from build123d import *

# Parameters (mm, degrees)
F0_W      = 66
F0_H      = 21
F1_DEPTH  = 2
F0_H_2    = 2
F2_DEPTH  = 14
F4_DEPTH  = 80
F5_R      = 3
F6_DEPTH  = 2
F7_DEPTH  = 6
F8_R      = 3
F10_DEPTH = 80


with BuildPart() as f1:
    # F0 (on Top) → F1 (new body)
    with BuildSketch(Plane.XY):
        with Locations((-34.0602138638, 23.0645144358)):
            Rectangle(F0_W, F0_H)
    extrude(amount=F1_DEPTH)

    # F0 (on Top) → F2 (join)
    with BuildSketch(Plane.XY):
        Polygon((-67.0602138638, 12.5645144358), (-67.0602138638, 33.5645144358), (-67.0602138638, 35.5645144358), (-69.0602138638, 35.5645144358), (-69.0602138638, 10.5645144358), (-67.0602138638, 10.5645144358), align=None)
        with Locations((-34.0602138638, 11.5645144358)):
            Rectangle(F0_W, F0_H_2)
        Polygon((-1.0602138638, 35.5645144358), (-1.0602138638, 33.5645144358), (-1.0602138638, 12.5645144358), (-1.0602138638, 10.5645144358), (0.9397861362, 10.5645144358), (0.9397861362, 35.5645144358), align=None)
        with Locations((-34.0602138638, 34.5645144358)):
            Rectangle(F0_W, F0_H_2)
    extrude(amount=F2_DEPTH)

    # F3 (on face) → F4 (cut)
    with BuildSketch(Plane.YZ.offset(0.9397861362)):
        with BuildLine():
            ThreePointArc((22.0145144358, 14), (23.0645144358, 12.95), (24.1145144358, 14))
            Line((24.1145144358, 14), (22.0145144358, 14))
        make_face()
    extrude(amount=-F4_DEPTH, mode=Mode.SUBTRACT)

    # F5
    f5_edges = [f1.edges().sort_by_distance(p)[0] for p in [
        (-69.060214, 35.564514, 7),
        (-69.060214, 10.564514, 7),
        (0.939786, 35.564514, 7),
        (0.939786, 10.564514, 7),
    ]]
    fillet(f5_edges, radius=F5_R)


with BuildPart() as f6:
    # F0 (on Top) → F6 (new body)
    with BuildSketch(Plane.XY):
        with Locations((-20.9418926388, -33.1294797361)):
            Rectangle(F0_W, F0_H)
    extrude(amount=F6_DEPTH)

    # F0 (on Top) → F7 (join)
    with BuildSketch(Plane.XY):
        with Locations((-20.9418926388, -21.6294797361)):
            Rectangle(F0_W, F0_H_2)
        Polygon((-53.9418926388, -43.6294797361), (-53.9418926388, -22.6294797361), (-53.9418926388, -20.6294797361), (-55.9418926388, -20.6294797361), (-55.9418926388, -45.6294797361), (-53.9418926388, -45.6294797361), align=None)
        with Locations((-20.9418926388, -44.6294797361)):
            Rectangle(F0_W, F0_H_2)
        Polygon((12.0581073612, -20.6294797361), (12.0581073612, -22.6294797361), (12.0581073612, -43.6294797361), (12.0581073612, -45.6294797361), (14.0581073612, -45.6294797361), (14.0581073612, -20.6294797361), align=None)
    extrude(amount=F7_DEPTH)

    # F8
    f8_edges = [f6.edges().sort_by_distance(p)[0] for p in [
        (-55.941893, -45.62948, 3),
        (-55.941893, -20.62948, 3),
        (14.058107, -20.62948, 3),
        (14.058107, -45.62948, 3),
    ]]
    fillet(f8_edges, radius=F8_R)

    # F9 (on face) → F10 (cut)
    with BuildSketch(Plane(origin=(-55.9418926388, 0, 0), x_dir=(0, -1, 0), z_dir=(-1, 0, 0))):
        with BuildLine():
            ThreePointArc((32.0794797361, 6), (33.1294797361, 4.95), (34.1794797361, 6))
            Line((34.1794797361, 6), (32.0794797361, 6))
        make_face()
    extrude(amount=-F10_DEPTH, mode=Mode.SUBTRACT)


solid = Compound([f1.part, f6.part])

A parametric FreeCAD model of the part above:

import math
import FreeCAD as App
import Part
import Sketcher
from FreeCAD import Vector


def edges_at(feature, points):
    """Names of the edges that pass closest to the given points."""
    edges = feature.Shape.Edges
    near = lambda p: min(range(len(edges)), key=lambda i: edges[i].distToShape(Part.Vertex(*p))[0])
    return sorted({f"Edge{near(p) + 1}" for p in points})

doc = App.newDocument("Part")
body = doc.addObject("PartDesign::Body", "Body")

# Sketch on XY plane
sketch1 = doc.addObject("Sketcher::SketchObject", "Sketch")
body.addObject(sketch1)
sketch1.AttachmentSupport = (doc.XY_Plane, [""])
sketch1.MapMode = "FlatFace"
sketch1.addGeometry([
    Part.LineSegment(Vector(-67.060214, 33.564514, 0), Vector(-67.060214, 12.564514, 0)),
    Part.LineSegment(Vector(-67.060214, 12.564514, 0), Vector(-1.060214, 12.564514, 0)),
    Part.LineSegment(Vector(-1.060214, 12.564514, 0), Vector(-1.060214, 33.564514, 0)),
    Part.LineSegment(Vector(-1.060214, 33.564514, 0), Vector(-67.060214, 33.564514, 0)),
], False)
sketch1.addConstraint([
    Sketcher.Constraint("Coincident", 0, 2, 1, 1),
    Sketcher.Constraint("Coincident", 1, 2, 2, 1),
    Sketcher.Constraint("Coincident", 2, 2, 3, 1),
    Sketcher.Constraint("Coincident", 3, 2, 0, 1),
    Sketcher.Constraint("Vertical", 0),
    Sketcher.Constraint("Horizontal", 1),
    Sketcher.Constraint("Vertical", 2),
    Sketcher.Constraint("Horizontal", 3),
    Sketcher.Constraint("DistanceX", 1, 1, 1, 2, 66.0),
    Sketcher.Constraint("DistanceY", 0, 2, 0, 1, 21.0),
    Sketcher.Constraint("DistanceX", 0, 2, -1, 1, 67.060214),
    Sketcher.Constraint("DistanceY", -1, 1, 0, 2, 12.564514),
])
pad1 = doc.addObject("PartDesign::Pad", "Pad")
body.addObject(pad1)
pad1.Profile = sketch1
pad1.Length = 2

# Sketch on XY plane
sketch2 = doc.addObject("Sketcher::SketchObject", "Sketch001")
body.addObject(sketch2)
sketch2.AttachmentSupport = (doc.XY_Plane, [""])
sketch2.MapMode = "FlatFace"
sketch2.addGeometry([
    Part.LineSegment(Vector(-69.060214, 35.564514, 0), Vector(-69.060214, 10.564514, 0)),  # 0
    Part.LineSegment(Vector(-69.060214, 10.564514, 0), Vector(0.939786, 10.564514, 0)),  # 1
    Part.LineSegment(Vector(0.939786, 10.564514, 0), Vector(0.939786, 35.564514, 0)),  # 2
    Part.LineSegment(Vector(0.939786, 35.564514, 0), Vector(-69.060214, 35.564514, 0)),  # 3
    Part.LineSegment(Vector(-1.060214, 33.564514, 0), Vector(-1.060214, 12.564514, 0)),  # 4
    Part.LineSegment(Vector(-1.060214, 12.564514, 0), Vector(-67.060214, 12.564514, 0)),  # 5
    Part.LineSegment(Vector(-67.060214, 12.564514, 0), Vector(-67.060214, 33.564514, 0)),  # 6
    Part.LineSegment(Vector(-67.060214, 33.564514, 0), Vector(-1.060214, 33.564514, 0)),  # 7
], False)
sketch2.addConstraint([
    Sketcher.Constraint("Coincident", 0, 2, 1, 1),
    Sketcher.Constraint("Coincident", 1, 2, 2, 1),
    Sketcher.Constraint("Coincident", 2, 2, 3, 1),
    Sketcher.Constraint("Coincident", 3, 2, 0, 1),
    Sketcher.Constraint("Coincident", 4, 2, 5, 1),
    Sketcher.Constraint("Coincident", 5, 2, 6, 1),
    Sketcher.Constraint("Coincident", 6, 2, 7, 1),
    Sketcher.Constraint("Coincident", 7, 2, 4, 1),
    Sketcher.Constraint("Vertical", 0),
    Sketcher.Constraint("Horizontal", 1),
    Sketcher.Constraint("Vertical", 2),
    Sketcher.Constraint("Horizontal", 3),
    Sketcher.Constraint("Vertical", 4),
    Sketcher.Constraint("Horizontal", 5),
    Sketcher.Constraint("Vertical", 6),
    Sketcher.Constraint("Horizontal", 7),
    Sketcher.Constraint("DistanceX", 1, 1, 1, 2, 70.0),
    Sketcher.Constraint("DistanceX", 5, 2, 5, 1, 66.0),
    Sketcher.Constraint("DistanceY", 0, 2, 0, 1, 25.0),
    Sketcher.Constraint("DistanceY", 4, 2, 4, 1, 21.0),
    Sketcher.Constraint("DistanceX", 4, 2, 1, 2, 2.0),
    Sketcher.Constraint("DistanceY", 1, 2, 4, 2, 2.0),
    Sketcher.Constraint("DistanceX", 0, 2, -1, 1, 69.060214),
    Sketcher.Constraint("DistanceY", -1, 1, 0, 2, 10.564514),
])
pad2 = doc.addObject("PartDesign::Pad", "Pad001")
body.addObject(pad2)
pad2.Profile = sketch2
pad2.Length = 14

# Sketch on YZ plane
sketch3 = doc.addObject("Sketcher::SketchObject", "Sketch002")
body.addObject(sketch3)
sketch3.AttachmentSupport = (doc.YZ_Plane, [""])
sketch3.MapMode = "FlatFace"
sketch3.AttachmentOffset = App.Placement(Vector(0, 0, 0.939786), App.Rotation())
sketch3.addGeometry([
    Part.ArcOfCircle(Part.Circle(Vector(23.064514, 14, 0), Vector(0, 0, 1), 1.05), math.radians(180), math.radians(360)),
    Part.LineSegment(Vector(24.114514, 14, 0), Vector(22.014514, 14, 0)),
], False)
sketch3.addConstraint([
    Sketcher.Constraint("Coincident", 0, 1, 1, 2),
    Sketcher.Constraint("Coincident", 1, 1, 0, 2),
    Sketcher.Constraint("Horizontal", 1),
    Sketcher.Constraint("Radius", 0, 1.05),
    Sketcher.Constraint("DistanceY", -1, 1, 0, 3, 14.0),
    Sketcher.Constraint("DistanceY", -1, 1, 0, 1, 14.0),
    Sketcher.Constraint("DistanceX", -1, 1, 0, 3, 23.064514),
])
pocket1 = doc.addObject("PartDesign::Pocket", "Pocket")
body.addObject(pocket1)
pocket1.Profile = sketch3
pocket1.Length = 80
doc.recompute()

fillet = doc.addObject("PartDesign::Fillet", "Fillet")
body.addObject(fillet)
fillet.Base = (pocket1, edges_at(pocket1, [
    (-69.06, 35.565, 7),
    (-69.06, 10.565, 7),
    (0.94, 35.565, 7),
    (0.94, 10.565, 7),
]))
fillet.Radius = 3
body2 = doc.addObject("PartDesign::Body", "Body001")

# Sketch on XY plane
sketch4 = doc.addObject("Sketcher::SketchObject", "Sketch003")
body2.addObject(sketch4)
sketch4.AttachmentSupport = (doc.getObject("XY_Plane001"), [""])
sketch4.MapMode = "FlatFace"
sketch4.addGeometry([
    Part.LineSegment(Vector(-53.941893, -22.62948, 0), Vector(-53.941893, -43.62948, 0)),
    Part.LineSegment(Vector(-53.941893, -43.62948, 0), Vector(12.058107, -43.62948, 0)),
    Part.LineSegment(Vector(12.058107, -43.62948, 0), Vector(12.058107, -22.62948, 0)),
    Part.LineSegment(Vector(12.058107, -22.62948, 0), Vector(-53.941893, -22.62948, 0)),
], False)
sketch4.addConstraint([
    Sketcher.Constraint("Coincident", 0, 2, 1, 1),
    Sketcher.Constraint("Coincident", 1, 2, 2, 1),
    Sketcher.Constraint("Coincident", 2, 2, 3, 1),
    Sketcher.Constraint("Coincident", 3, 2, 0, 1),
    Sketcher.Constraint("Vertical", 0),
    Sketcher.Constraint("Horizontal", 1),
    Sketcher.Constraint("Vertical", 2),
    Sketcher.Constraint("Horizontal", 3),
    Sketcher.Constraint("DistanceX", 1, 1, 1, 2, 66.0),
    Sketcher.Constraint("DistanceY", 0, 2, 0, 1, 21.0),
    Sketcher.Constraint("DistanceY", 0, 2, -1, 1, 43.62948),
    Sketcher.Constraint("DistanceX", 0, 2, -1, 1, 53.941893),
])
pad3 = doc.addObject("PartDesign::Pad", "Pad002")
body2.addObject(pad3)
pad3.Profile = sketch4
pad3.Length = 2

# Sketch on XY plane
sketch5 = doc.addObject("Sketcher::SketchObject", "Sketch004")
body2.addObject(sketch5)
sketch5.AttachmentSupport = (doc.getObject("XY_Plane001"), [""])
sketch5.MapMode = "FlatFace"
sketch5.addGeometry([
    Part.LineSegment(Vector(-55.941893, -20.62948, 0), Vector(-55.941893, -45.62948, 0)),  # 0
    Part.LineSegment(Vector(-55.941893, -45.62948, 0), Vector(14.058107, -45.62948, 0)),  # 1
    Part.LineSegment(Vector(14.058107, -45.62948, 0), Vector(14.058107, -20.62948, 0)),  # 2
    Part.LineSegment(Vector(14.058107, -20.62948, 0), Vector(-55.941893, -20.62948, 0)),  # 3
    Part.LineSegment(Vector(-53.941893, -22.62948, 0), Vector(12.058107, -22.62948, 0)),  # 4
    Part.LineSegment(Vector(12.058107, -22.62948, 0), Vector(12.058107, -43.62948, 0)),  # 5
    Part.LineSegment(Vector(12.058107, -43.62948, 0), Vector(-53.941893, -43.62948, 0)),  # 6
    Part.LineSegment(Vector(-53.941893, -43.62948, 0), Vector(-53.941893, -22.62948, 0)),  # 7
], False)
sketch5.addConstraint([
    Sketcher.Constraint("Coincident", 0, 2, 1, 1),
    Sketcher.Constraint("Coincident", 1, 2, 2, 1),
    Sketcher.Constraint("Coincident", 2, 2, 3, 1),
    Sketcher.Constraint("Coincident", 3, 2, 0, 1),
    Sketcher.Constraint("Coincident", 4, 2, 5, 1),
    Sketcher.Constraint("Coincident", 5, 2, 6, 1),
    Sketcher.Constraint("Coincident", 6, 2, 7, 1),
    Sketcher.Constraint("Coincident", 7, 2, 4, 1),
    Sketcher.Constraint("Vertical", 0),
    Sketcher.Constraint("Horizontal", 1),
    Sketcher.Constraint("Vertical", 2),
    Sketcher.Constraint("Horizontal", 3),
    Sketcher.Constraint("Horizontal", 4),
    Sketcher.Constraint("Vertical", 5),
    Sketcher.Constraint("Horizontal", 6),
    Sketcher.Constraint("Vertical", 7),
    Sketcher.Constraint("DistanceX", 1, 1, 1, 2, 70.0),
    Sketcher.Constraint("DistanceX", 4, 1, 4, 2, 66.0),
    Sketcher.Constraint("DistanceY", 0, 2, 0, 1, 25.0),
    Sketcher.Constraint("DistanceY", 5, 2, 5, 1, 21.0),
    Sketcher.Constraint("DistanceX", 4, 2, 2, 2, 2.0),
    Sketcher.Constraint("DistanceY", 4, 2, 2, 2, 2.0),
    Sketcher.Constraint("DistanceY", 0, 2, -1, 1, 45.62948),
    Sketcher.Constraint("DistanceX", 0, 2, -1, 1, 55.941893),
])
pad4 = doc.addObject("PartDesign::Pad", "Pad003")
body2.addObject(pad4)
pad4.Profile = sketch5
pad4.Length = 6
doc.recompute()

fillet2 = doc.addObject("PartDesign::Fillet", "Fillet001")
body2.addObject(fillet2)
fillet2.Base = (pad4, edges_at(pad4, [
    (-55.942, -45.629, 3),
    (-55.942, -20.629, 3),
    (14.058, -20.629, 3),
    (14.058, -45.629, 3),
]))
fillet2.Radius = 3

# Sketch on YZ plane
sketch6 = doc.addObject("Sketcher::SketchObject", "Sketch005")
body2.addObject(sketch6)
sketch6.AttachmentSupport = (doc.getObject("YZ_Plane001"), [""])
sketch6.MapMode = "FlatFace"
sketch6.AttachmentOffset = App.Placement(Vector(0, 0, -55.941893), App.Rotation())
sketch6.addGeometry([
    Part.ArcOfCircle(Part.Circle(Vector(-33.12948, 6, 0), Vector(0, 0, 1), 1.05), math.radians(180), math.radians(360)),
    Part.LineSegment(Vector(-34.17948, 6, 0), Vector(-32.07948, 6, 0)),
], False)
sketch6.addConstraint([
    Sketcher.Constraint("Coincident", 0, 1, 1, 1),
    Sketcher.Constraint("Coincident", 1, 2, 0, 2),
    Sketcher.Constraint("Horizontal", 1),
    Sketcher.Constraint("Radius", 0, 1.05),
    Sketcher.Constraint("DistanceY", -1, 1, 0, 3, 6.0),
    Sketcher.Constraint("DistanceY", -1, 1, 0, 1, 6.0),
    Sketcher.Constraint("DistanceX", 0, 3, -1, 1, 33.12948),
])
pocket2 = doc.addObject("PartDesign::Pocket", "Pocket001")
body2.addObject(pocket2)
pocket2.Profile = sketch6
pocket2.Length = 80
pocket2.Reversed = True

doc.recompute()
